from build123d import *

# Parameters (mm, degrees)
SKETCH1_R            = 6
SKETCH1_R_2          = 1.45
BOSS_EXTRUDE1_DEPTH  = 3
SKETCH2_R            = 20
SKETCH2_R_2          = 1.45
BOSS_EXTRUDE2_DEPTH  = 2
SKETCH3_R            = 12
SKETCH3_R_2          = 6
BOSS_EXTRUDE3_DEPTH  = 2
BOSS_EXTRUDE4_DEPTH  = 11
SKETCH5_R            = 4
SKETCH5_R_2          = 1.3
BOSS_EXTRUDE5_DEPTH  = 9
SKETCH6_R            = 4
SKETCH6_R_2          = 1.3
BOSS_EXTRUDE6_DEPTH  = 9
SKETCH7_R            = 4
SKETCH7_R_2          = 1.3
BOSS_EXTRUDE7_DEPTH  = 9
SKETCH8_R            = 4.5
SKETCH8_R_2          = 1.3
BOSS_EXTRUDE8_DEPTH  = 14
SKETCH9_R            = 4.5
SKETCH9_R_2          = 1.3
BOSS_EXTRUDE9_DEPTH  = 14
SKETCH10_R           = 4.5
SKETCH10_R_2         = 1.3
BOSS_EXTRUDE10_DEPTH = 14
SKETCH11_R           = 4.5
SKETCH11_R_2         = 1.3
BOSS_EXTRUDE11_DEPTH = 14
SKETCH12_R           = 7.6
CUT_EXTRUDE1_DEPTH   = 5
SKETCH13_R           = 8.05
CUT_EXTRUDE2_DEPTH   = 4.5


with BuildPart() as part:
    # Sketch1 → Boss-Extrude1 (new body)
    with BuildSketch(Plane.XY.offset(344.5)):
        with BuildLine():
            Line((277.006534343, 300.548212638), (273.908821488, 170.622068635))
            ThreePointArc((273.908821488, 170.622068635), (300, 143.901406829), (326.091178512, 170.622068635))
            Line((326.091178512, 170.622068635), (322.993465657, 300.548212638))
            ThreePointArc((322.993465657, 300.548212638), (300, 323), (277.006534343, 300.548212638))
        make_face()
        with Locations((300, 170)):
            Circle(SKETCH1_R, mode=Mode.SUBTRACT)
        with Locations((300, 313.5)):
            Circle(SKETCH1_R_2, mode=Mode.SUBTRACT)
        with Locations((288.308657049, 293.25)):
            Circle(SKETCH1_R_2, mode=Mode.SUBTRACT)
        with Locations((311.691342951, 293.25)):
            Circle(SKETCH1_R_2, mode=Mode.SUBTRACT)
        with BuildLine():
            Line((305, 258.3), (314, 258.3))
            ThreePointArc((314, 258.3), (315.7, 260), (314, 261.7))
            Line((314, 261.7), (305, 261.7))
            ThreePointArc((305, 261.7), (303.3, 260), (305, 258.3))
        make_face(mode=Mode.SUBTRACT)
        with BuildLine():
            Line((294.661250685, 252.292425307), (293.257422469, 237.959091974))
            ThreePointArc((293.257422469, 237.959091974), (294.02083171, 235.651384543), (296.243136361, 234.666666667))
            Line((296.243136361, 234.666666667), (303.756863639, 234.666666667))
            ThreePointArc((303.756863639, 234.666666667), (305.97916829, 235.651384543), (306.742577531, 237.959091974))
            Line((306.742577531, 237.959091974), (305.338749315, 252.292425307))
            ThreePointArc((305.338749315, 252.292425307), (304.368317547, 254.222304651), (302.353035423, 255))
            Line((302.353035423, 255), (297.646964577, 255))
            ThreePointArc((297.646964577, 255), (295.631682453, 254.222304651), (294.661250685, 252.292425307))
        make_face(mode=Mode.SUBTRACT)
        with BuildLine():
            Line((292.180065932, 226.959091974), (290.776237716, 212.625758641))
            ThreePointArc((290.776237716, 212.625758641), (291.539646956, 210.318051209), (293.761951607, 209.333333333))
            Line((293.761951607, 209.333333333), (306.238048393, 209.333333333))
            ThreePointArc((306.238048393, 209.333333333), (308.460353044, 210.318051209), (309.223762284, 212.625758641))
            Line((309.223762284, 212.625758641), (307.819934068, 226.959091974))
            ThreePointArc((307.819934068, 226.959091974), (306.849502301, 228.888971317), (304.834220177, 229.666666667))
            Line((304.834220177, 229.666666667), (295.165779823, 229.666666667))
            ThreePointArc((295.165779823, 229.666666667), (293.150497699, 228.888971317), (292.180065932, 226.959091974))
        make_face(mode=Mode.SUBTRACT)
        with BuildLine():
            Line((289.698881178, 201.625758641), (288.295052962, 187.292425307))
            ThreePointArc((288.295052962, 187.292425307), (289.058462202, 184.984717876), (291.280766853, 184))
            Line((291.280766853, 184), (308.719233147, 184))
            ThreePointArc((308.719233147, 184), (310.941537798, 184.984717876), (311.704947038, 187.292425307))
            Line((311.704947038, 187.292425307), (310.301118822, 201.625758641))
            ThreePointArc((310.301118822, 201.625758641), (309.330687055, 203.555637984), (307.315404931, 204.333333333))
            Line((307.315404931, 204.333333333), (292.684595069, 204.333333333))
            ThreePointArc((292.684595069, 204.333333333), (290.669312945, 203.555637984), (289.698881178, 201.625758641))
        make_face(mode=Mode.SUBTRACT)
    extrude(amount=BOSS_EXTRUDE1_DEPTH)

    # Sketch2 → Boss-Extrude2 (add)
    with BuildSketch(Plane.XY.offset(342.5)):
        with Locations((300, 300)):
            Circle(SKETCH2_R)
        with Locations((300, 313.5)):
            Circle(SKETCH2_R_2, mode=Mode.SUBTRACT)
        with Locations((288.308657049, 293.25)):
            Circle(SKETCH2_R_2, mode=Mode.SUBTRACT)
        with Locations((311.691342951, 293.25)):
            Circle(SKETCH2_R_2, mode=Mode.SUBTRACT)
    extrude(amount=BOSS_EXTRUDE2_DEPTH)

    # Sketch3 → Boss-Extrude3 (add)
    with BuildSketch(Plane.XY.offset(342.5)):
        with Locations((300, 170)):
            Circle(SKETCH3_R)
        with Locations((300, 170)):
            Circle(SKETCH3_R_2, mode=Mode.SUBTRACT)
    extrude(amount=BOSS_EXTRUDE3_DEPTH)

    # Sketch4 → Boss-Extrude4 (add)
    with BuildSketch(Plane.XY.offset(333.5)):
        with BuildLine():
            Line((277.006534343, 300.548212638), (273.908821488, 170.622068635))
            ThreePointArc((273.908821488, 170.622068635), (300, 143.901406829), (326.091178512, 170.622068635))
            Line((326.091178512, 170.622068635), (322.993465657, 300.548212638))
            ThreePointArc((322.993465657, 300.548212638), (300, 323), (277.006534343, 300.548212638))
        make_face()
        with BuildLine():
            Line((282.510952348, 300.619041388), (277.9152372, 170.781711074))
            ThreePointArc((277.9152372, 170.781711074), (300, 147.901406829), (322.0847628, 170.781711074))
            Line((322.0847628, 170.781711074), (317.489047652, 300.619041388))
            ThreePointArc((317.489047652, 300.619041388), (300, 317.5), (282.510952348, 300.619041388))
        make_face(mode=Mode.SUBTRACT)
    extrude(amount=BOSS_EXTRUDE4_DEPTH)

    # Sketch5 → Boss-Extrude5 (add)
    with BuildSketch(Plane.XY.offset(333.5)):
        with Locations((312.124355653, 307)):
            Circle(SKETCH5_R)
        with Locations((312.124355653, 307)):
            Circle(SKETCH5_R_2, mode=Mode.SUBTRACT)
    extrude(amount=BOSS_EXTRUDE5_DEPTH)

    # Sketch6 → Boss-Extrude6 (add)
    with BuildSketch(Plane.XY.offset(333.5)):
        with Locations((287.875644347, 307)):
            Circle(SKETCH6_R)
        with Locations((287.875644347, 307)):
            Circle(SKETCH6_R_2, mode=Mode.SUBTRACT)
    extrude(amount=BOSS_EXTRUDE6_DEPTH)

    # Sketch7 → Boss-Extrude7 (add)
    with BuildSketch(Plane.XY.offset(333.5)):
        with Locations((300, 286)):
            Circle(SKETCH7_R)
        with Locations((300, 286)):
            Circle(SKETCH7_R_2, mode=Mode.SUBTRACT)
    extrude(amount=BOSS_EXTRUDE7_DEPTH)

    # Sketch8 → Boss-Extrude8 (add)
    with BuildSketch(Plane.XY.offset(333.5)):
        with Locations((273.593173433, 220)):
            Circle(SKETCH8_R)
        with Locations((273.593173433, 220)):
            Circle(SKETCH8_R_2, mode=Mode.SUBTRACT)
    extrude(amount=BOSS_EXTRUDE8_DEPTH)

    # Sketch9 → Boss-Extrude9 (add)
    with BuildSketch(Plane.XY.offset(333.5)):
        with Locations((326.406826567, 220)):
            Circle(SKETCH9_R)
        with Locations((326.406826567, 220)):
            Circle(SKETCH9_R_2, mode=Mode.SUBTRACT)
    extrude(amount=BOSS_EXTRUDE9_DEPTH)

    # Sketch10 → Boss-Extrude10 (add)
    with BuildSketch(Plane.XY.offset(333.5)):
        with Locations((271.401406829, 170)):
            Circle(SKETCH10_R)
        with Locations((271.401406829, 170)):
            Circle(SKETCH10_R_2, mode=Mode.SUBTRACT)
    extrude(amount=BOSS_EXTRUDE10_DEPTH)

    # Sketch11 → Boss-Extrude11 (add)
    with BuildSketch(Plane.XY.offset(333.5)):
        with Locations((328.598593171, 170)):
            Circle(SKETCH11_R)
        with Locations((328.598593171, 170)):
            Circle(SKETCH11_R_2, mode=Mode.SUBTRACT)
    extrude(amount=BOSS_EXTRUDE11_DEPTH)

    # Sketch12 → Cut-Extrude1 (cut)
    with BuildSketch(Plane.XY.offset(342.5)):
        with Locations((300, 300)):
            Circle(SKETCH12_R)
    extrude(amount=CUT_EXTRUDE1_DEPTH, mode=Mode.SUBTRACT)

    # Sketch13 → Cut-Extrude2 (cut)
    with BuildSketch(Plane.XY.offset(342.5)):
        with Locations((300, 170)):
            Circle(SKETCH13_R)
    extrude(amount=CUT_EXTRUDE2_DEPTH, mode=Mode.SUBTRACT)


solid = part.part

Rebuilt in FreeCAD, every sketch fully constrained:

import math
import FreeCAD as App
import Part
import Sketcher
Q = App.Units.Quantity

doc = App.newDocument("Part")
body = doc.addObject("PartDesign::Body", "Body")

# Sketch on XY plane
sketch1 = body.newObject("Sketcher::SketchObject", "Sketch")
sketch1.AttachmentSupport = (doc.getObject("XY_Plane"), [""])
sketch1.MapMode = "FlatFace"
sketch1.AttachmentOffset = App.Placement(App.Vector(0, 0, 344.5), App.Rotation())
sketch1.addGeometry([
    Part.LineSegment(App.Vector(277.006534, 300.548213, 0), App.Vector(273.908821, 170.622069, 0)),  # 0
    Part.ArcOfCircle(Part.Circle(App.Vector(300, 170, 0), App.Vector(0, 0, 1), 26.098593), math.radians(178.634207), math.radians(361.365793)),  # 1
    Part.LineSegment(App.Vector(326.091179, 170.622069, 0), App.Vector(322.993466, 300.548213, 0)),  # 2
    Part.ArcOfCircle(Part.Circle(App.Vector(300, 300, 0), App.Vector(0, 0, 1), 23), math.radians(1.365793), math.radians(178.634207)),  # 3
    Part.Circle(App.Vector(300, 170, 0), App.Vector(0, 0, 1), 6),  # 4
    Part.LineSegment(App.Vector(288.295053, 187.292425, 0), App.Vector(289.698881, 201.625759, 0)),  # 5
    Part.ArcOfCircle(Part.Circle(App.Vector(292.684595, 201.333333, 0), App.Vector(0, 0, 1), 3), math.radians(90), math.radians(174.406206)),  # 6
    Part.LineSegment(App.Vector(292.684595, 204.333333, 0), App.Vector(307.315405, 204.333333, 0)),  # 7
    Part.ArcOfCircle(Part.Circle(App.Vector(307.315405, 201.333333, 0), App.Vector(0, 0, 1), 3), math.radians(5.593794), math.radians(90)),  # 8
    Part.LineSegment(App.Vector(310.301119, 201.625759, 0), App.Vector(311.704947, 187.292425, 0)),  # 9
    Part.ArcOfCircle(Part.Circle(App.Vector(308.719233, 187, 0), App.Vector(0, 0, 1), 3), math.radians(-90), math.radians(5.593794)),  # 10
    Part.LineSegment(App.Vector(308.719233, 184, 0), App.Vector(291.280767, 184, 0)),  # 11
    Part.ArcOfCircle(Part.Circle(App.Vector(291.280767, 187, 0), App.Vector(0, 0, 1), 3), math.radians(174.406206), math.radians(270)),  # 12
    Part.LineSegment(App.Vector(290.776238, 212.625759, 0), App.Vector(292.180066, 226.959092, 0)),  # 13
    Part.ArcOfCircle(Part.Circle(App.Vector(295.16578, 226.666667, 0), App.Vector(0, 0, 1), 3), math.radians(90), math.radians(174.406206)),  # 14
    Part.LineSegment(App.Vector(295.16578, 229.666667, 0), App.Vector(304.83422, 229.666667, 0)),  # 15
    Part.ArcOfCircle(Part.Circle(App.Vector(304.83422, 226.666667, 0), App.Vector(0, 0, 1), 3), math.radians(5.593794), math.radians(90)),  # 16
    Part.LineSegment(App.Vector(307.819934, 226.959092, 0), App.Vector(309.223762, 212.625759, 0)),  # 17
    Part.ArcOfCircle(Part.Circle(App.Vector(306.238048, 212.333333, 0), App.Vector(0, 0, 1), 3), math.radians(-90), math.radians(5.593794)),  # 18
    Part.LineSegment(App.Vector(306.238048, 209.333333, 0), App.Vector(293.761952, 209.333333, 0)),  # 19
    Part.ArcOfCircle(Part.Circle(App.Vector(293.761952, 212.333333, 0), App.Vector(0, 0, 1), 3), math.radians(174.406206), math.radians(270)),  # 20
    Part.LineSegment(App.Vector(293.257422, 237.959092, 0), App.Vector(294.661251, 252.292425, 0)),  # 21
    Part.ArcOfCircle(Part.Circle(App.Vector(297.646965, 252, 0), App.Vector(0, 0, 1), 3), math.radians(90), math.radians(174.406206)),  # 22
    Part.LineSegment(App.Vector(297.646965, 255, 0), App.Vector(302.353035, 255, 0)),  # 23
    Part.ArcOfCircle(Part.Circle(App.Vector(302.353035, 252, 0), App.Vector(0, 0, 1), 3), math.radians(5.593794), math.radians(90)),  # 24
    Part.LineSegment(App.Vector(305.338749, 252.292425, 0), App.Vector(306.742578, 237.959092, 0)),  # 25
    Part.ArcOfCircle(Part.Circle(App.Vector(303.756864, 237.666667, 0), App.Vector(0, 0, 1), 3), math.radians(-90), math.radians(5.593794)),  # 26
    Part.LineSegment(App.Vector(303.756864, 234.666667, 0), App.Vector(296.243136, 234.666667, 0)),  # 27
    Part.ArcOfCircle(Part.Circle(App.Vector(296.243136, 237.666667, 0), App.Vector(0, 0, 1), 3), math.radians(174.406206), math.radians(270)),  # 28
    Part.Circle(App.Vector(288.308657, 293.25, 0), App.Vector(0, 0, 1), 1.45),  # 29
    Part.Circle(App.Vector(300, 313.5, 0), App.Vector(0, 0, 1), 1.45),  # 30
    Part.LineSegment(App.Vector(314, 258.3, 0), App.Vector(305, 258.3, 0)),  # 31
    Part.ArcOfCircle(Part.Circle(App.Vector(305, 260, 0), App.Vector(0, 0, 1), 1.7), math.radians(90), math.radians(270)),  # 32
    Part.LineSegment(App.Vector(305, 261.7, 0), App.Vector(314, 261.7, 0)),  # 33
    Part.ArcOfCircle(Part.Circle(App.Vector(314, 260, 0), App.Vector(0, 0, 1), 1.7), math.radians(-90), math.radians(90)),  # 34
    Part.Circle(App.Vector(311.691343, 293.25, 0), App.Vector(0, 0, 1), 1.45),  # 35
], False)
sketch1.addConstraint([
    Sketcher.Constraint("Tangent", 0, 2, 1, 1),
    Sketcher.Constraint("Tangent", 1, 2, 2, 1),
    Sketcher.Constraint("Tangent", 2, 2, 3, 1),
    Sketcher.Constraint("Tangent", 3, 2, 0, 1),
    Sketcher.Constraint("Tangent", 5, 2, 6, 2),
    Sketcher.Constraint("Tangent", 6, 1, 7, 1),
    Sketcher.Constraint("Tangent", 7, 2, 8, 2),
    Sketcher.Constraint("Tangent", 8, 1, 9, 1),
    Sketcher.Constraint("Tangent", 9, 2, 10, 2),
    Sketcher.Constraint("Tangent", 10, 1, 11, 1),
    Sketcher.Constraint("Tangent", 11, 2, 12, 2),
    Sketcher.Constraint("Tangent", 12, 1, 5, 1),
    Sketcher.Constraint("Tangent", 13, 2, 14, 2),
    Sketcher.Constraint("Tangent", 14, 1, 15, 1),
    Sketcher.Constraint("Tangent", 15, 2, 16, 2),
    Sketcher.Constraint("Tangent", 16, 1, 17, 1),
    Sketcher.Constraint("Tangent", 17, 2, 18, 2),
    Sketcher.Constraint("Tangent", 18, 1, 19, 1),
    Sketcher.Constraint("Tangent", 19, 2, 20, 2),
    Sketcher.Constraint("Tangent", 20, 1, 13, 1),
    Sketcher.Constraint("Tangent", 21, 2, 22, 2),
    Sketcher.Constraint("Tangent", 22, 1, 23, 1),
    Sketcher.Constraint("Tangent", 23, 2, 24, 2),
    Sketcher.Constraint("Tangent", 24, 1, 25, 1),
    Sketcher.Constraint("Tangent", 25, 2, 26, 2),
    Sketcher.Constraint("Tangent", 26, 1, 27, 1),
    Sketcher.Constraint("Tangent", 27, 2, 28, 2),
    Sketcher.Constraint("Tangent", 28, 1, 21, 1),
    Sketcher.Constraint("Tangent", 31, 2, 32, 2),
    Sketcher.Constraint("Tangent", 32, 1, 33, 1),
    Sketcher.Constraint("Tangent", 33, 2, 34, 2),
    Sketcher.Constraint("Tangent", 34, 1, 31, 1),
    Sketcher.Constraint("Horizontal", 7),
    Sketcher.Constraint("Horizontal", 11),
    Sketcher.Constraint("Horizontal", 15),
    Sketcher.Constraint("Horizontal", 19),
    Sketcher.Constraint("Horizontal", 23),
    Sketcher.Constraint("Horizontal", 27),
    Sketcher.Constraint("Horizontal", 31),
    Sketcher.Constraint("Horizontal", 33),
    Sketcher.Constraint("Coincident", 4, 3, 1, 3),
    Sketcher.Constraint("Equal", 6, 8),
    Sketcher.Constraint("Equal", 8, 10),
    Sketcher.Constraint("Equal", 10, 12),
    Sketcher.Constraint("Equal", 12, 14),
    Sketcher.Constraint("Equal", 14, 16),
    Sketcher.Constraint("Equal", 16, 18),
    Sketcher.Constraint("Equal", 18, 20),
    Sketcher.Constraint("Equal", 20, 22),
    Sketcher.Constraint("Equal", 22, 24),
    Sketcher.Constraint("Equal", 24, 26),
    Sketcher.Constraint("Equal", 26, 28),
    Sketcher.Constraint("Equal", 29, 30),
    Sketcher.Constraint("Equal", 30, 35),
    Sketcher.Constraint("Parallel", 5, 13),
    Sketcher.Constraint("Parallel", 9, 17),
    Sketcher.Constraint("Parallel", 13, 21),
    Sketcher.Constraint("Parallel", 17, 25),
    Sketcher.Constraint("Horizontal", 29, 3, 35, 3),
    Sketcher.Constraint("Horizontal", 0, 2, 1, 2),
    Sketcher.Constraint("Horizontal", 5, 2, 8, 1),
    Sketcher.Constraint("Vertical", 4, 3, 30, 3),
    Sketcher.Constraint("Equal", 9, 13),
    Sketcher.Constraint("Equal", 17, 21),
    Sketcher.Constraint("Diameter", 4, Q("12 mm")),
    Sketcher.Constraint("Radius", 3, Q("23 mm")),
    Sketcher.Constraint("Radius", 6, Q("3 mm")),
    Sketcher.Constraint("Diameter", 29, Q("2.9 mm")),
    Sketcher.Constraint("Radius", 32, Q("1.7 mm")),
    Sketcher.Constraint("DistanceX", 31, 2, 31, 1, Q("9 mm")),
    Sketcher.Constraint("DistanceX", -1, 1, 1, 3, Q("300 mm")),
    Sketcher.Constraint("DistanceY", -1, 1, 1, 3, Q("170 mm")),
    Sketcher.Constraint("DistanceY", -1, 1, 3, 3, Q("300 mm")),
    Sketcher.Constraint("DistanceY", -1, 1, 10, 3, Q("187 mm")),
    Sketcher.Constraint("DistanceY", -1, 1, 22, 3, Q("252 mm")),
    Sketcher.Constraint("DistanceX", -1, 1, 32, 3, Q("305 mm")),
    Sketcher.Constraint("DistanceY", -1, 1, 32, 3, Q("260 mm")),
    Sketcher.Constraint("DistanceY", 8, 3, 18, 3, Q("11 mm")),
    Sketcher.Constraint("DistanceY", 16, 3, 26, 3, Q("11 mm")),
    Sketcher.Constraint("DistanceY", -1, 1, 30, 3, Q("313.5 mm")),
    Sketcher.Constraint("DistanceY", -1, 1, 29, 3, Q("293.25 mm")),
    Sketcher.Constraint("Radius", 1, Q("26.098593 mm")),
    Sketcher.Constraint("DistanceX", 7, 1, 7, 2, Q("14.63081 mm")),
    Sketcher.Constraint("DistanceX", 15, 1, 15, 2, Q("9.66844 mm")),
    Sketcher.Constraint("DistanceX", 23, 1, 23, 2, Q("4.706071 mm")),
    Sketcher.Constraint("DistanceX", 22, 3, 26, 3, Q("6.109899 mm")),
    Sketcher.Constraint("DistanceX", -1, 1, 14, 3, Q("295.16578 mm")),
    Sketcher.Constraint("DistanceX", -1, 1, 5, 2, Q("289.698881 mm")),
    Sketcher.Constraint("DistanceX", -1, 1, 21, 2, Q("294.661251 mm")),
    Sketcher.Constraint("DistanceX", 29, 3, 24, 3, Q("14.044378 mm")),
    Sketcher.Constraint("DistanceX", 3, 2, 35, 3, Q("34.684809 mm")),
])
pad1 = body.newObject("PartDesign::Pad", "Pad")
pad1.Profile = sketch1
pad1.Length = 3

# Sketch on XY plane
sketch2 = body.newObject("Sketcher::SketchObject", "Sketch001")
sketch2.AttachmentSupport = (doc.getObject("XY_Plane"), [""])
sketch2.MapMode = "FlatFace"
sketch2.AttachmentOffset = App.Placement(App.Vector(0, 0, 342.5), App.Rotation())
sketch2.addGeometry([
    Part.Circle(App.Vector(300, 300, 0), App.Vector(0, 0, 1), 20),
    Part.Circle(App.Vector(288.308657, 293.25, 0), App.Vector(0, 0, 1), 1.45),
    Part.Circle(App.Vector(311.691343, 293.25, 0), App.Vector(0, 0, 1), 1.45),
    Part.Circle(App.Vector(300, 313.5, 0), App.Vector(0, 0, 1), 1.45),
], False)
sketch2.addConstraint([
    Sketcher.Constraint("Equal", 1, 2),
    Sketcher.Constraint("Equal", 2, 3),
    Sketcher.Constraint("Horizontal", 1, 3, 2, 3),
    Sketcher.Constraint("Vertical", 0, 3, 3, 3),
    Sketcher.Constraint("Diameter", 0, Q("40 mm")),
    Sketcher.Constraint("Diameter", 1, Q("2.9 mm")),
    Sketcher.Constraint("DistanceX", -1, 1, 0, 3, Q("300 mm")),
    Sketcher.Constraint("DistanceY", -1, 1, 0, 3, Q("300 mm")),
    Sketcher.Constraint("DistanceY", -1, 1, 3, 3, Q("313.5 mm")),
    Sketcher.Constraint("DistanceY", -1, 1, 1, 3, Q("293.25 mm")),
    Sketcher.Constraint("DistanceX", -1, 1, 1, 3, Q("288.308657 mm")),
    Sketcher.Constraint("DistanceX", -1, 1, 2, 3, Q("311.691343 mm")),
])
pad2 = body.newObject("PartDesign::Pad", "Pad001")
pad2.Profile = sketch2
pad2.Length = 2

# Sketch on XY plane
sketch3 = body.newObject("Sketcher::SketchObject", "Sketch002")
sketch3.AttachmentSupport = (doc.getObject("XY_Plane"), [""])
sketch3.MapMode = "FlatFace"
sketch3.AttachmentOffset = App.Placement(App.Vector(0, 0, 342.5), App.Rotation())
sketch3.addGeometry([
    Part.Circle(App.Vector(300, 170, 0), App.Vector(0, 0, 1), 12),
    Part.Circle(App.Vector(300, 170, 0), App.Vector(0, 0, 1), 6),
], False)
sketch3.addConstraint([
    Sketcher.Constraint("Coincident", 1, 3, 0, 3),
    Sketcher.Constraint("Diameter", 0, Q("24 mm")),
    Sketcher.Constraint("Diameter", 1, Q("12 mm")),
    Sketcher.Constraint("DistanceX", -1, 1, 0, 3, Q("300 mm")),
    Sketcher.Constraint("DistanceY", -1, 1, 0, 3, Q("170 mm")),
])
pad3 = body.newObject("PartDesign::Pad", "Pad002")
pad3.Profile = sketch3
pad3.Length = 2

# Sketch on XY plane
sketch4 = body.newObject("Sketcher::SketchObject", "Sketch003")
sketch4.AttachmentSupport = (doc.getObject("XY_Plane"), [""])
sketch4.MapMode = "FlatFace"
sketch4.AttachmentOffset = App.Placement(App.Vector(0, 0, 333.5), App.Rotation())
sketch4.addGeometry([
    Part.LineSegment(App.Vector(277.006534, 300.548213, 0), App.Vector(273.908821, 170.622069, 0)),  # 0
    Part.ArcOfCircle(Part.Circle(App.Vector(300, 170, 0), App.Vector(0, 0, 1), 26.098593), math.radians(178.634207), math.radians(361.365793)),  # 1
    Part.LineSegment(App.Vector(326.091179, 170.622069, 0), App.Vector(322.993466, 300.548213, 0)),  # 2
    Part.ArcOfCircle(Part.Circle(App.Vector(300, 300, 0), App.Vector(0, 0, 1), 23), math.radians(1.365793), math.radians(178.634207)),  # 3
    Part.LineSegment(App.Vector(277.915237, 170.781711, 0), App.Vector(282.510952, 300.619041, 0)),  # 4
    Part.ArcOfCircle(Part.Circle(App.Vector(300, 300, 0), App.Vector(0, 0, 1), 17.5), math.radians(2.027192), math.radians(177.972808)),  # 5
    Part.LineSegment(App.Vector(317.489048, 300.619041, 0), App.Vector(322.084763, 170.781711, 0)),  # 6
    Part.ArcOfCircle(Part.Circle(App.Vector(300, 170, 0), App.Vector(0, 0, 1), 22.098593), math.radians(177.972808), math.radians(362.027192)),  # 7
], False)
sketch4.addConstraint([
    Sketcher.Constraint("Tangent", 0, 2, 1, 1),
    Sketcher.Constraint("Tangent", 1, 2, 2, 1),
    Sketcher.Constraint("Tangent", 2, 2, 3, 1),
    Sketcher.Constraint("Tangent", 3, 2, 0, 1),
    Sketcher.Constraint("Tangent", 4, 2, 5, 2),
    Sketcher.Constraint("Tangent", 5, 1, 6, 1),
    Sketcher.Constraint("Tangent", 6, 2, 7, 2),
    Sketcher.Constraint("Tangent", 7, 1, 4, 1),
    Sketcher.Constraint("Coincident", 5, 3, 3, 3),
    Sketcher.Constraint("Coincident", 7, 3, 1, 3),
    Sketcher.Constraint("Horizontal", 0, 2, 1, 2),
    Sketcher.Constraint("Radius", 3, Q("23 mm")),
    Sketcher.Constraint("Radius", 5, Q("17.5 mm")),
    Sketcher.Constraint("DistanceX", -1, 1, 1, 3, Q("300 mm")),
    Sketcher.Constraint("DistanceY", -1, 1, 1, 3, Q("170 mm")),
    Sketcher.Constraint("DistanceY", -1, 1, 3, 3, Q("300 mm")),
    Sketcher.Constraint("Radius", 1, Q("26.098593 mm")),
    Sketcher.Constraint("Radius", 7, Q("22.098593 mm")),
])
pad4 = body.newObject("PartDesign::Pad", "Pad003")
pad4.Profile = sketch4
pad4.Length = 11

# Sketch on XY plane
sketch5 = body.newObject("Sketcher::SketchObject", "Sketch004")
sketch5.AttachmentSupport = (doc.getObject("XY_Plane"), [""])
sketch5.MapMode = "FlatFace"
sketch5.AttachmentOffset = App.Placement(App.Vector(0, 0, 333.5), App.Rotation())
sketch5.addGeometry([
    Part.Circle(App.Vector(312.124356, 307, 0), App.Vector(0, 0, 1), 4),
    Part.Circle(App.Vector(312.124356, 307, 0), App.Vector(0, 0, 1), 1.3),
], False)
sketch5.addConstraint([
    Sketcher.Constraint("Coincident", 1, 3, 0, 3),
    Sketcher.Constraint("Diameter", 0, Q("8 mm")),
    Sketcher.Constraint("Diameter", 1, Q("2.6 mm")),
    Sketcher.Constraint("DistanceY", -1, 1, 0, 3, Q("307 mm")),
    Sketcher.Constraint("DistanceX", -1, 1, 0, 3, Q("312.124356 mm")),
])
pad5 = body.newObject("PartDesign::Pad", "Pad004")
pad5.Profile = sketch5
pad5.Length = 9

# Sketch on XY plane
sketch6 = body.newObject("Sketcher::SketchObject", "Sketch005")
sketch6.AttachmentSupport = (doc.getObject("XY_Plane"), [""])
sketch6.MapMode = "FlatFace"
sketch6.AttachmentOffset = App.Placement(App.Vector(0, 0, 333.5), App.Rotation())
sketch6.addGeometry([
    Part.Circle(App.Vector(287.875644, 307, 0), App.Vector(0, 0, 1), 4),
    Part.Circle(App.Vector(287.875644, 307, 0), App.Vector(0, 0, 1), 1.3),
], False)
sketch6.addConstraint([
    Sketcher.Constraint("Coincident", 1, 3, 0, 3),
    Sketcher.Constraint("Diameter", 0, Q("8 mm")),
    Sketcher.Constraint("Diameter", 1, Q("2.6 mm")),
    Sketcher.Constraint("DistanceY", -1, 1, 0, 3, Q("307 mm")),
    Sketcher.Constraint("DistanceX", -1, 1, 0, 3, Q("287.875644 mm")),
])
pad6 = body.newObject("PartDesign::Pad", "Pad005")
pad6.Profile = sketch6
pad6.Length = 9

# Sketch on XY plane
sketch7 = body.newObject("Sketcher::SketchObject", "Sketch006")
sketch7.AttachmentSupport = (doc.getObject("XY_Plane"), [""])
sketch7.MapMode = "FlatFace"
sketch7.AttachmentOffset = App.Placement(App.Vector(0, 0, 333.5), App.Rotation())
sketch7.addGeometry([
    Part.Circle(App.Vector(300, 286, 0), App.Vector(0, 0, 1), 4),
    Part.Circle(App.Vector(300, 286, 0), App.Vector(0, 0, 1), 1.3),
], False)
sketch7.addConstraint([
    Sketcher.Constraint("Coincident", 1, 3, 0, 3),
    Sketcher.Constraint("Diameter", 0, Q("8 mm")),
    Sketcher.Constraint("Diameter", 1, Q("2.6 mm")),
    Sketcher.Constraint("DistanceX", -1, 1, 0, 3, Q("300 mm")),
    Sketcher.Constraint("DistanceY", -1, 1, 0, 3, Q("286 mm")),
])
pad7 = body.newObject("PartDesign::Pad", "Pad006")
pad7.Profile = sketch7
pad7.Length = 9

# Sketch on XY plane
sketch8 = body.newObject("Sketcher::SketchObject", "Sketch007")
sketch8.AttachmentSupport = (doc.getObject("XY_Plane"), [""])
sketch8.MapMode = "FlatFace"
sketch8.AttachmentOffset = App.Placement(App.Vector(0, 0, 333.5), App.Rotation())
sketch8.addGeometry([
    Part.Circle(App.Vector(273.593173, 220, 0), App.Vector(0, 0, 1), 4.5),
    Part.Circle(App.Vector(273.593173, 220, 0), App.Vector(0, 0, 1), 1.3),
], False)
sketch8.addConstraint([
    Sketcher.Constraint("Coincident", 1, 3, 0, 3),
    Sketcher.Constraint("Diameter", 0, Q("9 mm")),
    Sketcher.Constraint("Diameter", 1, Q("2.6 mm")),
    Sketcher.Constraint("DistanceY", -1, 1, 0, 3, Q("220 mm")),
    Sketcher.Constraint("DistanceX", -1, 1, 0, 3, Q("273.593173 mm")),
])
pad8 = body.newObject("PartDesign::Pad", "Pad007")
pad8.Profile = sketch8
pad8.Length = 14

# Sketch on XY plane
sketch9 = body.newObject("Sketcher::SketchObject", "Sketch008")
sketch9.AttachmentSupport = (doc.getObject("XY_Plane"), [""])
sketch9.MapMode = "FlatFace"
sketch9.AttachmentOffset = App.Placement(App.Vector(0, 0, 333.5), App.Rotation())
sketch9.addGeometry([
    Part.Circle(App.Vector(326.406827, 220, 0), App.Vector(0, 0, 1), 4.5),
    Part.Circle(App.Vector(326.406827, 220, 0), App.Vector(0, 0, 1), 1.3),
], False)
sketch9.addConstraint([
    Sketcher.Constraint("Coincident", 1, 3, 0, 3),
    Sketcher.Constraint("Diameter", 0, Q("9 mm")),
    Sketcher.Constraint("Diameter", 1, Q("2.6 mm")),
    Sketcher.Constraint("DistanceY", -1, 1, 0, 3, Q("220 mm")),
    Sketcher.Constraint("DistanceX", -1, 1, 0, 3, Q("326.406827 mm")),
])
pad9 = body.newObject("PartDesign::Pad", "Pad008")
pad9.Profile = sketch9
pad9.Length = 14

# Sketch on XY plane
sketch10 = body.newObject("Sketcher::SketchObject", "Sketch009")
sketch10.AttachmentSupport = (doc.getObject("XY_Plane"), [""])
sketch10.MapMode = "FlatFace"
sketch10.AttachmentOffset = App.Placement(App.Vector(0, 0, 333.5), App.Rotation())
sketch10.addGeometry([
    Part.Circle(App.Vector(271.401407, 170, 0), App.Vector(0, 0, 1), 4.5),
    Part.Circle(App.Vector(271.401407, 170, 0), App.Vector(0, 0, 1), 1.3),
], False)
sketch10.addConstraint([
    Sketcher.Constraint("Coincident", 1, 3, 0, 3),
    Sketcher.Constraint("Diameter", 0, Q("9 mm")),
    Sketcher.Constraint("Diameter", 1, Q("2.6 mm")),
    Sketcher.Constraint("DistanceY", -1, 1, 0, 3, Q("170 mm")),
    Sketcher.Constraint("DistanceX", -1, 1, 0, 3, Q("271.401407 mm")),
])
pad10 = body.newObject("PartDesign::Pad", "Pad009")
pad10.Profile = sketch10
pad10.Length = 14

# Sketch on XY plane
sketch11 = body.newObject("Sketcher::SketchObject", "Sketch010")
sketch11.AttachmentSupport = (doc.getObject("XY_Plane"), [""])
sketch11.MapMode = "FlatFace"
sketch11.AttachmentOffset = App.Placement(App.Vector(0, 0, 333.5), App.Rotation())
sketch11.addGeometry([
    Part.Circle(App.Vector(328.598593, 170, 0), App.Vector(0, 0, 1), 4.5),
    Part.Circle(App.Vector(328.598593, 170, 0), App.Vector(0, 0, 1), 1.3),
], False)
sketch11.addConstraint([
    Sketcher.Constraint("Coincident", 1, 3, 0, 3),
    Sketcher.Constraint("Diameter", 0, Q("9 mm")),
    Sketcher.Constraint("Diameter", 1, Q("2.6 mm")),
    Sketcher.Constraint("DistanceY", -1, 1, 0, 3, Q("170 mm")),
    Sketcher.Constraint("DistanceX", -1, 1, 0, 3, Q("328.598593 mm")),
])
pad11 = body.newObject("PartDesign::Pad", "Pad010")
pad11.Profile = sketch11
pad11.Length = 14

# Sketch on XY plane
sketch12 = body.newObject("Sketcher::SketchObject", "Sketch011")
sketch12.AttachmentSupport = (doc.getObject("XY_Plane"), [""])
sketch12.MapMode = "FlatFace"
sketch12.AttachmentOffset = App.Placement(App.Vector(0, 0, 342.5), App.Rotation())
sketch12.addGeometry(Part.Circle(App.Vector(300, 300, 0), App.Vector(0, 0, 1), 7.6), False)
sketch12.addConstraint([
    Sketcher.Constraint("Diameter", 0, Q("15.2 mm")),
    Sketcher.Constraint("DistanceX", -1, 1, 0, 3, Q("300 mm")),
    Sketcher.Constraint("DistanceY", -1, 1, 0, 3, Q("300 mm")),
])
pocket1 = body.newObject("PartDesign::Pocket", "Pocket")
pocket1.Profile = sketch12
pocket1.Length = 5
pocket1.Reversed = True

# Sketch on XY plane
sketch13 = body.newObject("Sketcher::SketchObject", "Sketch012")
sketch13.AttachmentSupport = (doc.getObject("XY_Plane"), [""])
sketch13.MapMode = "FlatFace"
sketch13.AttachmentOffset = App.Placement(App.Vector(0, 0, 342.5), App.Rotation())
sketch13.addGeometry(Part.Circle(App.Vector(300, 170, 0), App.Vector(0, 0, 1), 8.05), False)
sketch13.addConstraint([
    Sketcher.Constraint("Diameter", 0, Q("16.1 mm")),
    Sketcher.Constraint("DistanceX", -1, 1, 0, 3, Q("300 mm")),
    Sketcher.Constraint("DistanceY", -1, 1, 0, 3, Q("170 mm")),
])
pocket2 = body.newObject("PartDesign::Pocket", "Pocket001")
pocket2.Profile = sketch13
pocket2.Length = 4.5
pocket2.Reversed = True

doc.recompute()
